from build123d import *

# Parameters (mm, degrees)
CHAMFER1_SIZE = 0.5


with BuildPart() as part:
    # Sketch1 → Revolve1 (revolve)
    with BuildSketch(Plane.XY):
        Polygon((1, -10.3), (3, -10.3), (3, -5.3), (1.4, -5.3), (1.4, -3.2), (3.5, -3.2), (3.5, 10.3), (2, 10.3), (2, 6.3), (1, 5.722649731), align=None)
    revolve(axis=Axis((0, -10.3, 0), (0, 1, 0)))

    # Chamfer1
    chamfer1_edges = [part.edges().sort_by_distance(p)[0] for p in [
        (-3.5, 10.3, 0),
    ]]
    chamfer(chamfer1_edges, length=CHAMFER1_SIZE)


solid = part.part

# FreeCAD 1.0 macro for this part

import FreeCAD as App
import Part
import Sketcher
Q = App.Units.Quantity


def edges_at(feature, points):
    """Names of the edges that pass closest to the given points."""
    edges = feature.Shape.Edges
    near = lambda p: min(range(len(edges)), key=lambda i: edges[i].distToShape(Part.Vertex(*p))[0])
    return sorted({f"Edge{near(p) + 1}" for p in points})


def add_polygon(sketch, points):
    """Adds a closed chain of lines whose ends are joined by coincident constraints."""
    first, n = sketch.GeometryCount, len(points)
    for a, b in zip(points, points[1:] + points[:1]):
        sketch.addGeometry(Part.LineSegment(App.Vector(*a, 0), App.Vector(*b, 0)), False)
    for i in range(n):
        sketch.addConstraint(Sketcher.Constraint("Coincident", first + i, 2, first + (i + 1) % n, 1))

doc = App.newDocument("Part")
params = doc.addObject("Spreadsheet::Sheet", "Params")
for row, (alias, value) in enumerate([
    ("sketch1_width", "2 mm"),
    ("sketch1_height", "5 mm"),
    ("sketch1_height2", "4 mm"),
    ("sketch1_width2", "1.6 mm"),
    ("sketch1_width3", "2.1 mm"),
    ("revolution_angle", "360 deg"),
    ("chamfer_size", "0.5 mm"),
], start=1):
    params.set(f"A{row}", alias)
    params.set(f"B{row}", "=" + value)
    params.setAlias(f"B{row}", alias)

body = doc.addObject("PartDesign::Body", "Body")

sketch1 = doc.addObject("Sketcher::SketchObject", "Sketch")
body.addObject(sketch1)
sketch1.AttachmentSupport = (doc.XY_Plane, [""])
sketch1.MapMode = "FlatFace"
add_polygon(sketch1, [(1, -10.3), (3, -10.3), (3, -5.3), (1.4, -5.3), (1.4, -3.2), (3.5, -3.2), (3.5, 10.3), (2, 10.3), (2, 6.3), (1, 5.7)])
sketch1.addConstraint([
    Sketcher.Constraint("Horizontal", 0),
    Sketcher.Constraint("Vertical", 1),
    Sketcher.Constraint("Horizontal", 2),
    Sketcher.Constraint("Vertical", 3),
    Sketcher.Constraint("Horizontal", 4),
    Sketcher.Constraint("Vertical", 5),
    Sketcher.Constraint("Horizontal", 6),
    Sketcher.Constraint("Vertical", 7),
    Sketcher.Constraint("Vertical", 9),
    Sketcher.Constraint("Equal", 4, 3),
    Sketcher.Constraint("DistanceX", 0, 1, 0, 2, 2.0),
    Sketcher.Constraint("DistanceY", 1, 1, 1, 2, 5.0),
    Sketcher.Constraint("DistanceY", 7, 2, 7, 1, 4.0),
    Sketcher.Constraint("Angle", 8, Q("-150 deg")),
    Sketcher.Constraint("DistanceX", 2, 2, 2, 1, 1.6),
    Sketcher.Constraint("DistanceX", 4, 1, 4, 2, 2.1),
    Sketcher.Constraint("DistanceX", 6, 2, 6, 1, 1.5),
    Sketcher.Constraint("DistanceY", 5, 1, 5, 2, 13.5),
    Sketcher.Constraint("DistanceX", -1, 1, 0, 2, 3.0),
    Sketcher.Constraint("DistanceY", 0, 2, -1, 1, 10.3),
])
sketch1.setExpression("Constraints[20]", "Params.sketch1_width")
sketch1.setExpression("Constraints[21]", "Params.sketch1_height")
sketch1.setExpression("Constraints[22]", "Params.sketch1_height2")
sketch1.setExpression("Constraints[24]", "Params.sketch1_width2")
sketch1.setExpression("Constraints[25]", "Params.sketch1_width3")
revolution = doc.addObject("PartDesign::Revolution", "Revolution")
body.addObject(revolution)
revolution.Profile = sketch1
revolution.ReferenceAxis = (sketch1, ["V_Axis"])
revolution.setExpression("Angle", "Params.revolution_angle")
doc.recompute()

chamfer = doc.addObject("PartDesign::Chamfer", "Chamfer")
body.addObject(chamfer)
chamfer.Base = (revolution, edges_at(revolution, [(-3.5, 10.3, 0)]))
chamfer.setExpression("Size", "Params.chamfer_size")

doc.recompute()
